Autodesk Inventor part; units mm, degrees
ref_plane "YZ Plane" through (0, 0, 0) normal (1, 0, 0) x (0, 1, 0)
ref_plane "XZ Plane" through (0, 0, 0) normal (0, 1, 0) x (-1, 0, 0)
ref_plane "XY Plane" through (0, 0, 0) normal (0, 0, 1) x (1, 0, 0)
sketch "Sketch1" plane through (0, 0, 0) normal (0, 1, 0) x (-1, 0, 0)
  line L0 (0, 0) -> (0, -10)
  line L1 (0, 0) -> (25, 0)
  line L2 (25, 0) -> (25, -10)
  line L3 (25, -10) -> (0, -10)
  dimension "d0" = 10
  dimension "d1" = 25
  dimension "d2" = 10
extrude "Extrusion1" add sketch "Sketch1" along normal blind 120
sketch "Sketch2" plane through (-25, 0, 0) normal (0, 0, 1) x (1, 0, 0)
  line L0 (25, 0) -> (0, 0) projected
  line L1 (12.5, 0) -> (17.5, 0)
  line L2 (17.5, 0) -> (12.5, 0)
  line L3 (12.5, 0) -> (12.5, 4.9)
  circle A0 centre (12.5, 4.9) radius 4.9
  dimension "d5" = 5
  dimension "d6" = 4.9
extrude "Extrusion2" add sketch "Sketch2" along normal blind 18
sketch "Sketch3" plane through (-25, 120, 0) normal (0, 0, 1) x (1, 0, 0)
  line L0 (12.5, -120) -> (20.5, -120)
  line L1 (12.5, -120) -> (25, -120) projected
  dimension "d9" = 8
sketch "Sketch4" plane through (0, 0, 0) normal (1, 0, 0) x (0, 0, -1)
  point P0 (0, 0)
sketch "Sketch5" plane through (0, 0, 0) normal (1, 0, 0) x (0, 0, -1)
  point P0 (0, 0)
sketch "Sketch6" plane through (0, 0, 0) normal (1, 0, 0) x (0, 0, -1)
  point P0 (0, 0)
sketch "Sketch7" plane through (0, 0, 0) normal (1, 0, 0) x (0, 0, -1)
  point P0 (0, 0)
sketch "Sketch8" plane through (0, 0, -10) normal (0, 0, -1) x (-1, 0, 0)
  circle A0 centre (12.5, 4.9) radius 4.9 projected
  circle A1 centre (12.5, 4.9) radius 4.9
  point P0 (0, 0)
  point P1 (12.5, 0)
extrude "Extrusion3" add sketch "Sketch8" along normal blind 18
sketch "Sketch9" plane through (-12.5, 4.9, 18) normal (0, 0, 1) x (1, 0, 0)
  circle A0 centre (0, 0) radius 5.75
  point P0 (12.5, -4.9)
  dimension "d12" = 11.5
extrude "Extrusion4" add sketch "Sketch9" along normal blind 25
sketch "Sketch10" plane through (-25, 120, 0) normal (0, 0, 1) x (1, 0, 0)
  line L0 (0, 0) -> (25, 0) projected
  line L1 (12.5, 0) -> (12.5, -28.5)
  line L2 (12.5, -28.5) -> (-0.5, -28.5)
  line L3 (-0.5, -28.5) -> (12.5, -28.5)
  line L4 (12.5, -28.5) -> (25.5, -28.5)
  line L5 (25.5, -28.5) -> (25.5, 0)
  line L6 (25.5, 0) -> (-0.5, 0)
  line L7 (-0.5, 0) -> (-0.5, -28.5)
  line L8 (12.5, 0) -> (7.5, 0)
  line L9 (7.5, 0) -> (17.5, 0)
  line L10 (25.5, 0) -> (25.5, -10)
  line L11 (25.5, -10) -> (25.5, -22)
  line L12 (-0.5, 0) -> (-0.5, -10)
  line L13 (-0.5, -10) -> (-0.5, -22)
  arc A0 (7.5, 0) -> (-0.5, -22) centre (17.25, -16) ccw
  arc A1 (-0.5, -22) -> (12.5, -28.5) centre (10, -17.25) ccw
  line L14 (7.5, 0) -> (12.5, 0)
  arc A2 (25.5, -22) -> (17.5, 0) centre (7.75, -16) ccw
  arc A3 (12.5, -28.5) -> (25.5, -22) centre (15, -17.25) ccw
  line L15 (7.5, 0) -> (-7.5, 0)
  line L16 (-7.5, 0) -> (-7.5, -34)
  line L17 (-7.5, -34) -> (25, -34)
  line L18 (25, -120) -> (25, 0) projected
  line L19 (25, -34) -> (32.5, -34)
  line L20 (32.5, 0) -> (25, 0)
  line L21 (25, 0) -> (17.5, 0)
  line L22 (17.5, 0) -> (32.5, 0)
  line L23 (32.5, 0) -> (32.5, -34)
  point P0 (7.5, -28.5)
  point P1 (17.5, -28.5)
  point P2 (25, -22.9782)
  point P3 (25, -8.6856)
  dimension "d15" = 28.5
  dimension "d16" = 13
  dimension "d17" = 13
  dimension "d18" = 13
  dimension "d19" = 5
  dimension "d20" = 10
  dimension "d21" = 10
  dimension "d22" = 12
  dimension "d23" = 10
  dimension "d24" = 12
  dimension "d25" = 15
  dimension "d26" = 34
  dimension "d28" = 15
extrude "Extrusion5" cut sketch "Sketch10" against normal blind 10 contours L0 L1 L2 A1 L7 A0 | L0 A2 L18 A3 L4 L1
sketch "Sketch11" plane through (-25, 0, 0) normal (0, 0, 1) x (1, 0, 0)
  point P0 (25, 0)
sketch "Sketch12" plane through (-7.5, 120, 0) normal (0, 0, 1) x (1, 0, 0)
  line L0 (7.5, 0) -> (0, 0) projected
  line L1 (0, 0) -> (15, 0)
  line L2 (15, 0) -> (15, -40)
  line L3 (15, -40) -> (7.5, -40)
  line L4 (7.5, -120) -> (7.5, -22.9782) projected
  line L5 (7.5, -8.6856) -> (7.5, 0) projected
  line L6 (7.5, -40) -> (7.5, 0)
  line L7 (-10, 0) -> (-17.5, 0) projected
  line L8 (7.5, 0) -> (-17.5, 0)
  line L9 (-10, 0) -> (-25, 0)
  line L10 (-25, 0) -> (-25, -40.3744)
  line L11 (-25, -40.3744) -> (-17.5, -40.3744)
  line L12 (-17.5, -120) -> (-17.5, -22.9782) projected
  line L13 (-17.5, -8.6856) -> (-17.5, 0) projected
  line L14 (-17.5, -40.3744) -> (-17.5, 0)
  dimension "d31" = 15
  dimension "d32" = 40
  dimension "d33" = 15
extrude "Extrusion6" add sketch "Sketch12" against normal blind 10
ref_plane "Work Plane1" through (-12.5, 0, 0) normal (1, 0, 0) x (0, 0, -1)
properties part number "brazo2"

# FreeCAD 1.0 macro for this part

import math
import FreeCAD as App
import Part
import Sketcher

V = App.Vector
Q = App.Units.Quantity

doc = App.newDocument("Part")
params = doc.addObject("Spreadsheet::Sheet", "Params")
for row, (alias, value) in enumerate([
    ("sketch1_width", "25 mm"),
    ("sketch1_height", "10 mm"),
    ("pad1_length", "120 mm"),
    ("sketch2_diameter", "9.8 mm"),
    ("pad2_length", "18 mm"),
    ("sketch3_diameter", "9.8 mm"),
    ("pad3_length", "18 mm"),
    ("sketch4_diameter", "11.5 mm"),
    ("pad4_length", "25 mm"),
    ("sketch5_width", "10 mm"),
    ("sketch5_height", "12 mm"),
    ("pocket1_length", "10 mm"),
    ("sketch6_height", "40 mm"),
    ("sketch6_width", "7.5 mm"),
    ("pad5_length", "10 mm"),
], start=1):
    params.set(f"A{row}", alias)
    params.set(f"B{row}", "=" + value)
    params.setAlias(f"B{row}", alias)

body = doc.addObject("PartDesign::Body", "Body")
body.AllowCompound = True

# Sketch on XZ plane
sketch1 = doc.addObject("Sketcher::SketchObject", "Sketch")
body.addObject(sketch1)
sketch1.AttachmentSupport = (doc.XZ_Plane, [""])
sketch1.MapMode = "FlatFace"
sketch1.addGeometry(Part.LineSegment(V(-25, 0, 0), V(0, 0, 0)), False)
sketch1.addGeometry(Part.LineSegment(V(0, 0, 0), V(0, -10, 0)), False)
sketch1.addGeometry(Part.LineSegment(V(0, -10, 0), V(-25, -10, 0)), False)
sketch1.addGeometry(Part.LineSegment(V(-25, -10, 0), V(-25, 0, 0)), False)
sketch1.addConstraint(Sketcher.Constraint("Coincident", 0, 2, 1, 1))
sketch1.addConstraint(Sketcher.Constraint("Coincident", 1, 2, 2, 1))
sketch1.addConstraint(Sketcher.Constraint("Coincident", 2, 2, 3, 1))
sketch1.addConstraint(Sketcher.Constraint("Coincident", 3, 2, 0, 1))
sketch1.addConstraint(Sketcher.Constraint("Horizontal", 0))
sketch1.addConstraint(Sketcher.Constraint("Vertical", 1))
sketch1.addConstraint(Sketcher.Constraint("Horizontal", 2))
sketch1.addConstraint(Sketcher.Constraint("Vertical", 3))
sketch1.addConstraint(Sketcher.Constraint("Coincident", 0, 2, -1, 1))
sketch1.addConstraint(Sketcher.Constraint("DistanceX", 0, 1, 0, 2, Q("25 mm")))
sketch1.addConstraint(Sketcher.Constraint("DistanceY", 1, 2, 1, 1, Q("10 mm")))
sketch1.setExpression("Constraints[9]", "Params.sketch1_width")
sketch1.setExpression("Constraints[10]", "Params.sketch1_height")
pad1 = doc.addObject("PartDesign::Pad", "Pad")
body.addObject(pad1)
pad1.Profile = sketch1
pad1.setExpression("Length", "Params.pad1_length")
pad1.Reversed = True

# Sketch on XY plane
sketch2 = doc.addObject("Sketcher::SketchObject", "Sketch001")
body.addObject(sketch2)
sketch2.AttachmentSupport = (doc.XY_Plane, [""])
sketch2.MapMode = "FlatFace"
sketch2.addGeometry(Part.Circle(V(-12.5, 4.9, 0), V(0, 0, 1), 4.9), False)
sketch2.addConstraint(Sketcher.Constraint("Diameter", 0, Q("9.8 mm")))
sketch2.addConstraint(Sketcher.Constraint("DistanceY", -1, 1, 0, 3, Q("4.9 mm")))
sketch2.addConstraint(Sketcher.Constraint("DistanceX", 0, 3, -1, 1, Q("12.5 mm")))
sketch2.setExpression("Constraints[0]", "Params.sketch2_diameter")
pad2 = doc.addObject("PartDesign::Pad", "Pad001")
body.addObject(pad2)
pad2.Profile = sketch2
pad2.setExpression("Length", "Params.pad2_length")

# Sketch on XY plane
sketch3 = doc.addObject("Sketcher::SketchObject", "Sketch002")
body.addObject(sketch3)
sketch3.AttachmentSupport = (doc.XY_Plane, [""])
sketch3.MapMode = "FlatFace"
sketch3.AttachmentOffset = App.Placement(V(0, 0, -10), App.Rotation())
sketch3.addGeometry(Part.Circle(V(-12.5, 4.9, 0), V(0, 0, 1), 4.9), False)
sketch3.addConstraint(Sketcher.Constraint("Diameter", 0, Q("9.8 mm")))
sketch3.addConstraint(Sketcher.Constraint("DistanceX", 0, 3, -1, 1, Q("12.5 mm")))
sketch3.addConstraint(Sketcher.Constraint("DistanceY", -1, 1, 0, 3, Q("4.9 mm")))
sketch3.setExpression("Constraints[0]", "Params.sketch3_diameter")
pad3 = doc.addObject("PartDesign::Pad", "Pad002")
body.addObject(pad3)
pad3.Profile = sketch3
pad3.setExpression("Length", "Params.pad3_length")
pad3.Reversed = True

# Sketch on XY plane
sketch4 = doc.addObject("Sketcher::SketchObject", "Sketch003")
body.addObject(sketch4)
sketch4.AttachmentSupport = (doc.XY_Plane, [""])
sketch4.MapMode = "FlatFace"
sketch4.AttachmentOffset = App.Placement(V(0, 0, 18), App.Rotation())
sketch4.addGeometry(Part.Circle(V(-12, 5, 0), V(0, 0, 1), 6), False)
sketch4.addConstraint(Sketcher.Constraint("Diameter", 0, Q("11.5 mm")))
sketch4.addConstraint(Sketcher.Constraint("DistanceX", 0, 3, -1, 1, Q("12.5 mm")))
sketch4.addConstraint(Sketcher.Constraint("DistanceY", -1, 1, 0, 3, Q("4.9 mm")))
sketch4.setExpression("Constraints[0]", "Params.sketch4_diameter")
pad4 = doc.addObject("PartDesign::Pad", "Pad003")
body.addObject(pad4)
pad4.Profile = sketch4
pad4.setExpression("Length", "Params.pad4_length")

# Sketch on XY plane
sketch5 = doc.addObject("Sketcher::SketchObject", "Sketch004")
body.addObject(sketch5)
sketch5.AttachmentSupport = (doc.XY_Plane, [""])
sketch5.MapMode = "FlatFace"
sketch5.addGeometry(Part.ArcOfCircle(Part.Circle(V(-8, 104, 0), V(0, 0, 1), 19), math.radians(121), math.radians(161)), False)
sketch5.addGeometry(Part.LineSegment(V(-26, 110, 0), V(-26, 98, 0)), False)
sketch5.addGeometry(Part.ArcOfCircle(Part.Circle(V(-15, 103, 0), V(0, 0, 1), 12), math.radians(-156), math.radians(-103)), False)
sketch5.addGeometry(Part.LineSegment(V(-18, 92, 0), V(-8, 92, 0)), False)
sketch5.addGeometry(Part.ArcOfCircle(Part.Circle(V(-10, 103, 0), V(0, 0, 1), 12), math.radians(-77), math.radians(-30)), False)
sketch5.addGeometry(Part.LineSegment(V(0, 97, 0), V(0, 111, 0)), False)
sketch5.addGeometry(Part.ArcOfCircle(Part.Circle(V(-17, 104, 0), V(0, 0, 1), 19), math.radians(23), math.radians(59)), False)
sketch5.addGeometry(Part.LineSegment(V(-8, 120, 0), V(-18, 120, 0)), False)
sketch5.addConstraint(Sketcher.Constraint("Coincident", 0, 2, 1, 1))
sketch5.addConstraint(Sketcher.Constraint("Coincident", 1, 2, 2, 1))
sketch5.addConstraint(Sketcher.Constraint("Coincident", 2, 2, 3, 1))
sketch5.addConstraint(Sketcher.Constraint("Coincident", 3, 2, 4, 1))
sketch5.addConstraint(Sketcher.Constraint("Coincident", 4, 2, 5, 1))
sketch5.addConstraint(Sketcher.Constraint("Coincident", 5, 2, 6, 1))
sketch5.addConstraint(Sketcher.Constraint("Coincident", 6, 2, 7, 1))
sketch5.addConstraint(Sketcher.Constraint("Coincident", 7, 2, 0, 1))
sketch5.addConstraint(Sketcher.Constraint("Vertical", 1))
sketch5.addConstraint(Sketcher.Constraint("Horizontal", 3))
sketch5.addConstraint(Sketcher.Constraint("Vertical", 5))
sketch5.addConstraint(Sketcher.Constraint("Horizontal", 7))
sketch5.addConstraint(Sketcher.Constraint("Equal", 2, 4))
sketch5.addConstraint(Sketcher.Constraint("Equal", 0, 6))
sketch5.addConstraint(Sketcher.Constraint("PointOnObject", 4, 2, -2))
sketch5.addConstraint(Sketcher.Constraint("Horizontal", 2, 3, 4, 3))
sketch5.addConstraint(Sketcher.Constraint("Horizontal", 0, 3, 6, 3))
sketch5.addConstraint(Sketcher.Constraint("Vertical", 3, 2, 6, 2))
sketch5.addConstraint(Sketcher.Constraint("Vertical", 2, 2, 7, 2))
sketch5.addConstraint(Sketcher.Constraint("DistanceX", 3, 1, 3, 2, Q("10 mm")))
sketch5.addConstraint(Sketcher.Constraint("DistanceY", 1, 2, 1, 1, Q("12 mm")))
sketch5.addConstraint(Sketcher.Constraint("DistanceX", 2, 3, -1, 1, Q("15 mm")))
sketch5.addConstraint(Sketcher.Constraint("DistanceX", 4, 3, -1, 1, Q("10 mm")))
sketch5.addConstraint(Sketcher.Constraint("DistanceY", 0, 2, 7, 2, Q("10 mm")))
sketch5.addConstraint(Sketcher.Constraint("DistanceY", -1, 1, 0, 3, Q("104 mm")))
sketch5.addConstraint(Sketcher.Constraint("DistanceY", -1, 1, 0, 2, Q("110 mm")))
sketch5.addConstraint(Sketcher.Constraint("DistanceX", 1, 2, 2, 2, Q("8 mm")))
sketch5.addConstraint(Sketcher.Constraint("DistanceY", -1, 1, 2, 2, Q("91.5 mm")))
sketch5.setExpression("Constraints[19]", "Params.sketch5_width")
sketch5.setExpression("Constraints[20]", "Params.sketch5_height")
pocket1 = doc.addObject("PartDesign::Pocket", "Pocket")
body.addObject(pocket1)
pocket1.Profile = sketch5
pocket1.setExpression("Length", "Params.pocket1_length")

# Sketch on XY plane
sketch6 = doc.addObject("Sketcher::SketchObject", "Sketch005")
body.addObject(sketch6)
sketch6.AttachmentSupport = (doc.XY_Plane, [""])
sketch6.MapMode = "FlatFace"
sketch6.addGeometry(Part.LineSegment(V(-25, 80, 0), V(-25, 120, 0)), False)
sketch6.addGeometry(Part.LineSegment(V(-25, 120, 0), V(-32, 120, 0)), False)
sketch6.addGeometry(Part.LineSegment(V(-32, 120, 0), V(-32, 80, 0)), False)
sketch6.addGeometry(Part.LineSegment(V(-32, 80, 0), V(-25, 80, 0)), False)
sketch6.addGeometry(Part.LineSegment(V(8, 120, 0), V(0, 120, 0)), False)
sketch6.addGeometry(Part.LineSegment(V(0, 120, 0), V(0, 80, 0)), False)
sketch6.addGeometry(Part.LineSegment(V(0, 80, 0), V(8, 80, 0)), False)
sketch6.addGeometry(Part.LineSegment(V(8, 80, 0), V(8, 120, 0)), False)
sketch6.addConstraint(Sketcher.Constraint("Coincident", 0, 2, 1, 1))
sketch6.addConstraint(Sketcher.Constraint("Coincident", 1, 2, 2, 1))
sketch6.addConstraint(Sketcher.Constraint("Coincident", 2, 2, 3, 1))
sketch6.addConstraint(Sketcher.Constraint("Coincident", 3, 2, 0, 1))
sketch6.addConstraint(Sketcher.Constraint("Coincident", 4, 2, 5, 1))
sketch6.addConstraint(Sketcher.Constraint("Coincident", 5, 2, 6, 1))
sketch6.addConstraint(Sketcher.Constraint("Coincident", 6, 2, 7, 1))
sketch6.addConstraint(Sketcher.Constraint("Coincident", 7, 2, 4, 1))
sketch6.addConstraint(Sketcher.Constraint("Vertical", 0))
sketch6.addConstraint(Sketcher.Constraint("Horizontal", 1))
sketch6.addConstraint(Sketcher.Constraint("Vertical", 2))
sketch6.addConstraint(Sketcher.Constraint("Horizontal", 3))
sketch6.addConstraint(Sketcher.Constraint("Horizontal", 4))
sketch6.addConstraint(Sketcher.Constraint("Vertical", 5))
sketch6.addConstraint(Sketcher.Constraint("Horizontal", 6))
sketch6.addConstraint(Sketcher.Constraint("Vertical", 7))
sketch6.addConstraint(Sketcher.Constraint("PointOnObject", 4, 2, -2))
sketch6.addConstraint(Sketcher.Constraint("Horizontal", 1, 2, 4, 2))
sketch6.addConstraint(Sketcher.Constraint("Equal", 3, 4))
sketch6.addConstraint(Sketcher.Constraint("DistanceY", 5, 2, 5, 1, Q("40 mm")))
sketch6.addConstraint(Sketcher.Constraint("DistanceX", 2, 2, 6, 2, Q("40 mm")))
sketch6.addConstraint(Sketcher.Constraint("DistanceX", 1, 2, 1, 1, Q("7.5 mm")))
sketch6.addConstraint(Sketcher.Constraint("DistanceY", -1, 1, 0, 2, Q("120 mm")))
sketch6.addConstraint(Sketcher.Constraint("DistanceY", 0, 1, 0, 2, Q("40.3744 mm")))
sketch6.setExpression("Constraints[19]", "Params.sketch6_height")
sketch6.setExpression("Constraints[21]", "Params.sketch6_width")
pad5 = doc.addObject("PartDesign::Pad", "Pad004")
body.addObject(pad5)
pad5.Profile = sketch6
pad5.setExpression("Length", "Params.pad5_length")
pad5.Reversed = True

doc.recompute()
